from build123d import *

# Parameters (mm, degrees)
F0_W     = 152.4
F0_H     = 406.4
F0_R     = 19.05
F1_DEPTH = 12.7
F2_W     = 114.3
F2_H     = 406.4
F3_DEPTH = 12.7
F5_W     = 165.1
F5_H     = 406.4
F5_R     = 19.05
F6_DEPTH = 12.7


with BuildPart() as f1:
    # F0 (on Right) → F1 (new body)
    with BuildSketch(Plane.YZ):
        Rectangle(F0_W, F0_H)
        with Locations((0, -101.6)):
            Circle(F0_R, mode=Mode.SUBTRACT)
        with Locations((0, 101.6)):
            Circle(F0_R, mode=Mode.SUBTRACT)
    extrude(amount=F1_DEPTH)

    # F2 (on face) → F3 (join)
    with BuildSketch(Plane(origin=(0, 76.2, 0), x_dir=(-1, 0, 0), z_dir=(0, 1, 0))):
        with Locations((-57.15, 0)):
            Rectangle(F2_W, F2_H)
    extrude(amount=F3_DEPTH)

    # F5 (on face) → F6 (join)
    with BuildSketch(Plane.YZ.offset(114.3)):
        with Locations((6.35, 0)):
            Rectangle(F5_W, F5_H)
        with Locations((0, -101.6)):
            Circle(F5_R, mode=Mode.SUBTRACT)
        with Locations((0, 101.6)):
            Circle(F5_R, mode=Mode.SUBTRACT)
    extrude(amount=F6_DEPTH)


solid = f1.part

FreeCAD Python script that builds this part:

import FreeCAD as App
import Part
import Sketcher

V = App.Vector
Q = App.Units.Quantity

doc = App.newDocument("Part")
params = doc.addObject("Spreadsheet::Sheet", "Params")
for row, (alias, value) in enumerate([
    ("sketch1_diameter", "1.5 in"),
    ("sketch1_width", "6 in"),
    ("sketch1_height", "16 in"),
    ("pad1_length", "0.5 in"),
    ("sketch2_height", "16 in"),
    ("sketch2_width", "4.5 in"),
    ("pad2_length", "0.5 in"),
    ("sketch3_diameter", "1.5 in"),
    ("sketch3_height", "16 in"),
    ("sketch3_width", "6.5 in"),
    ("pad3_length", "0.5 in"),
], start=1):
    params.set(f"A{row}", alias)
    params.set(f"B{row}", "=" + value)
    params.setAlias(f"B{row}", alias)

body = doc.addObject("PartDesign::Body", "Body")

sketch1 = body.newObject("Sketcher::SketchObject", "Sketch")
sketch1.AttachmentSupport = (doc.getObject("YZ_Plane"), [""])
sketch1.MapMode = "FlatFace"
sketch1.addGeometry([
    Part.LineSegment(V(-76, 203, 0), V(-76, -203, 0)),
    Part.LineSegment(V(-76, -203, 0), V(76, -203, 0)),
    Part.LineSegment(V(76, -203, 0), V(76, 203, 0)),
    Part.LineSegment(V(76, 203, 0), V(-76, 203, 0)),
    Part.Circle(V(0, -102, 0), V(0, 0, 1), 19),
    Part.Circle(V(0, 102, 0), V(0, 0, 1), 19),
], False)
sketch1.addConstraint([
    Sketcher.Constraint("Coincident", 0, 2, 1, 1),
    Sketcher.Constraint("Coincident", 1, 2, 2, 1),
    Sketcher.Constraint("Coincident", 2, 2, 3, 1),
    Sketcher.Constraint("Coincident", 3, 2, 0, 1),
    Sketcher.Constraint("Vertical", 0),
    Sketcher.Constraint("Horizontal", 1),
    Sketcher.Constraint("Vertical", 2),
    Sketcher.Constraint("Horizontal", 3),
    Sketcher.Constraint("Equal", 4, 5),
    Sketcher.Constraint("Symmetric", 4, 3, 5, 3, -1, 1),
    Sketcher.Constraint("Symmetric", 0, 2, 2, 2, -1, 1),
    Sketcher.Constraint("PointOnObject", 4, 3, -2),
    Sketcher.Constraint("Diameter", 4, Q("1.5 in")),
    Sketcher.Constraint("DistanceX", 1, 1, 1, 2, Q("6 in")),
    Sketcher.Constraint("DistanceY", 0, 2, 0, 1, Q("16 in")),
    Sketcher.Constraint("DistanceY", 4, 3, -1, 1, Q("4 in")),
])
sketch1.setExpression("Constraints[12]", "Params.sketch1_diameter")
sketch1.setExpression("Constraints[13]", "Params.sketch1_width")
sketch1.setExpression("Constraints[14]", "Params.sketch1_height")
pad1 = body.newObject("PartDesign::Pad", "Pad")
pad1.Profile = sketch1
pad1.setExpression("Length", "Params.pad1_length")

sketch2 = body.newObject("Sketcher::SketchObject", "Sketch001")
sketch2.AttachmentSupport = (doc.getObject("XZ_Plane"), [""])
sketch2.MapMode = "FlatFace"
sketch2.AttachmentOffset = App.Placement(V(0, 0, -3 * 25.4), App.Rotation())
sketch2.addGeometry([
    Part.LineSegment(V(114, 203, 0), V(114, -203, 0)),
    Part.LineSegment(V(114, -203, 0), V(0, -203, 0)),
    Part.LineSegment(V(0, -203, 0), V(0, 203, 0)),
    Part.LineSegment(V(0, 203, 0), V(114, 203, 0)),
], False)
sketch2.addConstraint([
    Sketcher.Constraint("Coincident", 0, 2, 1, 1),
    Sketcher.Constraint("Coincident", 1, 2, 2, 1),
    Sketcher.Constraint("Coincident", 2, 2, 3, 1),
    Sketcher.Constraint("Coincident", 3, 2, 0, 1),
    Sketcher.Constraint("Vertical", 0),
    Sketcher.Constraint("Horizontal", 1),
    Sketcher.Constraint("Vertical", 2),
    Sketcher.Constraint("Horizontal", 3),
    Sketcher.Constraint("Symmetric", 1, 2, 2, 2, -1, 1),
    Sketcher.Constraint("DistanceY", 0, 2, 0, 1, Q("16 in")),
    Sketcher.Constraint("DistanceX", 1, 2, 1, 1, Q("4.5 in")),
])
sketch2.setExpression("Constraints[9]", "Params.sketch2_height")
sketch2.setExpression("Constraints[10]", "Params.sketch2_width")
pad2 = body.newObject("PartDesign::Pad", "Pad001")
pad2.Profile = sketch2
pad2.setExpression("Length", "Params.pad2_length")
pad2.Reversed = True

sketch3 = body.newObject("Sketcher::SketchObject", "Sketch002")
sketch3.AttachmentSupport = (doc.getObject("YZ_Plane"), [""])
sketch3.MapMode = "FlatFace"
sketch3.AttachmentOffset = App.Placement(V(0, 0, 4.5 * 25.4), App.Rotation())
sketch3.addGeometry([
    Part.LineSegment(V(-76, 203, 0), V(-76, -203, 0)),
    Part.LineSegment(V(-76, -203, 0), V(89, -203, 0)),
    Part.LineSegment(V(89, -203, 0), V(89, 203, 0)),
    Part.LineSegment(V(89, 203, 0), V(-76, 203, 0)),
    Part.Circle(V(0, -102, 0), V(0, 0, 1), 19),
    Part.Circle(V(0, 102, 0), V(0, 0, 1), 19),
], False)
sketch3.addConstraint([
    Sketcher.Constraint("Coincident", 0, 2, 1, 1),
    Sketcher.Constraint("Coincident", 1, 2, 2, 1),
    Sketcher.Constraint("Coincident", 2, 2, 3, 1),
    Sketcher.Constraint("Coincident", 3, 2, 0, 1),
    Sketcher.Constraint("Vertical", 0),
    Sketcher.Constraint("Horizontal", 1),
    Sketcher.Constraint("Vertical", 2),
    Sketcher.Constraint("Horizontal", 3),
    Sketcher.Constraint("Equal", 4, 5),
    Sketcher.Constraint("Symmetric", 4, 3, 5, 3, -1, 1),
    Sketcher.Constraint("PointOnObject", 4, 3, -2),
    Sketcher.Constraint("Diameter", 4, Q("1.5 in")),
    Sketcher.Constraint("DistanceY", 0, 2, 0, 1, Q("16 in")),
    Sketcher.Constraint("DistanceX", 1, 1, 1, 2, Q("6.5 in")),
    Sketcher.Constraint("DistanceY", 4, 3, -1, 1, Q("4 in")),
    Sketcher.Constraint("DistanceX", 0, 2, -1, 1, Q("3 in")),
    Sketcher.Constraint("DistanceY", 0, 2, -1, 1, Q("8 in")),
])
sketch3.setExpression("Constraints[11]", "Params.sketch3_diameter")
sketch3.setExpression("Constraints[12]", "Params.sketch3_height")
sketch3.setExpression("Constraints[13]", "Params.sketch3_width")
pad3 = body.newObject("PartDesign::Pad", "Pad002")
pad3.Profile = sketch3
pad3.setExpression("Length", "Params.pad3_length")

doc.recompute()
